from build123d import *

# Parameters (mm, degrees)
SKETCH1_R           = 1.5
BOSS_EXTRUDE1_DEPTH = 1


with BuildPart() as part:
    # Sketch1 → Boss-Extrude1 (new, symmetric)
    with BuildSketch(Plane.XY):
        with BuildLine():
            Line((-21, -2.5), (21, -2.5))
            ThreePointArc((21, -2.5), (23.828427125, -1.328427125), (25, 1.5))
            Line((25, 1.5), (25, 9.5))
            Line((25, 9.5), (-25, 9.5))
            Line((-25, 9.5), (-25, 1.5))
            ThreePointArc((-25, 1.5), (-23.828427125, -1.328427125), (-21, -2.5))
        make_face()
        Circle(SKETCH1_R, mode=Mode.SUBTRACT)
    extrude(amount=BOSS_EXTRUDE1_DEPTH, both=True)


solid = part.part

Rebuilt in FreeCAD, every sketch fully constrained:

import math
import FreeCAD as App
import Part
import Sketcher
from FreeCAD import Vector
Q = App.Units.Quantity

doc = App.newDocument("Part")
body = doc.addObject("PartDesign::Body", "Body")

sketch1 = doc.addObject("Sketcher::SketchObject", "Sketch")
body.addObject(sketch1)
sketch1.AttachmentSupport = (doc.XY_Plane, [""])
sketch1.MapMode = "FlatFace"
sketch1.addGeometry([
    Part.LineSegment(Vector(-21, -2.5, 0), Vector(21, -2.5, 0)),
    Part.ArcOfCircle(Part.Circle(Vector(21, 1.5, 0), Vector(0, 0, 1), 4), math.radians(-90), math.radians(0)),
    Part.LineSegment(Vector(25, 1.5, 0), Vector(25, 9.5, 0)),
    Part.LineSegment(Vector(25, 9.5, 0), Vector(-25, 9.5, 0)),
    Part.LineSegment(Vector(-25, 9.5, 0), Vector(-25, 1.5, 0)),
    Part.ArcOfCircle(Part.Circle(Vector(-21, 1.5, 0), Vector(0, 0, 1), 4), math.radians(180), math.radians(270)),
    Part.Circle(Vector(0, 0, 0), Vector(0, 0, 1), 1.5),
], False)
sketch1.addConstraint([
    Sketcher.Constraint("Tangent", 0, 2, 1, 1),
    Sketcher.Constraint("Tangent", 1, 2, 2, 1),
    Sketcher.Constraint("Coincident", 2, 2, 3, 1),
    Sketcher.Constraint("Coincident", 3, 2, 4, 1),
    Sketcher.Constraint("Tangent", 4, 2, 5, 1),
    Sketcher.Constraint("Tangent", 5, 2, 0, 1),
    Sketcher.Constraint("Horizontal", 0),
    Sketcher.Constraint("Vertical", 2),
    Sketcher.Constraint("Horizontal", 3),
    Sketcher.Constraint("Vertical", 4),
    Sketcher.Constraint("Coincident", 6, 3, -1, 1),
    Sketcher.Constraint("Equal", 1, 5),
    Sketcher.Constraint("Diameter", 6, Q("3 mm")),
    Sketcher.Constraint("Radius", 1, Q("4 mm")),
    Sketcher.Constraint("DistanceX", 0, 1, 0, 2, Q("42 mm")),
    Sketcher.Constraint("DistanceY", 2, 1, 2, 2, Q("8 mm")),
    Sketcher.Constraint("DistanceX", -1, 1, 1, 3, Q("21 mm")),
    Sketcher.Constraint("DistanceY", -1, 1, 1, 3, Q("1.5 mm")),
])
pad1 = doc.addObject("PartDesign::Pad", "Pad")
body.addObject(pad1)
pad1.Profile = sketch1
pad1.Length = 2
pad1.Midplane = True

doc.recompute()
